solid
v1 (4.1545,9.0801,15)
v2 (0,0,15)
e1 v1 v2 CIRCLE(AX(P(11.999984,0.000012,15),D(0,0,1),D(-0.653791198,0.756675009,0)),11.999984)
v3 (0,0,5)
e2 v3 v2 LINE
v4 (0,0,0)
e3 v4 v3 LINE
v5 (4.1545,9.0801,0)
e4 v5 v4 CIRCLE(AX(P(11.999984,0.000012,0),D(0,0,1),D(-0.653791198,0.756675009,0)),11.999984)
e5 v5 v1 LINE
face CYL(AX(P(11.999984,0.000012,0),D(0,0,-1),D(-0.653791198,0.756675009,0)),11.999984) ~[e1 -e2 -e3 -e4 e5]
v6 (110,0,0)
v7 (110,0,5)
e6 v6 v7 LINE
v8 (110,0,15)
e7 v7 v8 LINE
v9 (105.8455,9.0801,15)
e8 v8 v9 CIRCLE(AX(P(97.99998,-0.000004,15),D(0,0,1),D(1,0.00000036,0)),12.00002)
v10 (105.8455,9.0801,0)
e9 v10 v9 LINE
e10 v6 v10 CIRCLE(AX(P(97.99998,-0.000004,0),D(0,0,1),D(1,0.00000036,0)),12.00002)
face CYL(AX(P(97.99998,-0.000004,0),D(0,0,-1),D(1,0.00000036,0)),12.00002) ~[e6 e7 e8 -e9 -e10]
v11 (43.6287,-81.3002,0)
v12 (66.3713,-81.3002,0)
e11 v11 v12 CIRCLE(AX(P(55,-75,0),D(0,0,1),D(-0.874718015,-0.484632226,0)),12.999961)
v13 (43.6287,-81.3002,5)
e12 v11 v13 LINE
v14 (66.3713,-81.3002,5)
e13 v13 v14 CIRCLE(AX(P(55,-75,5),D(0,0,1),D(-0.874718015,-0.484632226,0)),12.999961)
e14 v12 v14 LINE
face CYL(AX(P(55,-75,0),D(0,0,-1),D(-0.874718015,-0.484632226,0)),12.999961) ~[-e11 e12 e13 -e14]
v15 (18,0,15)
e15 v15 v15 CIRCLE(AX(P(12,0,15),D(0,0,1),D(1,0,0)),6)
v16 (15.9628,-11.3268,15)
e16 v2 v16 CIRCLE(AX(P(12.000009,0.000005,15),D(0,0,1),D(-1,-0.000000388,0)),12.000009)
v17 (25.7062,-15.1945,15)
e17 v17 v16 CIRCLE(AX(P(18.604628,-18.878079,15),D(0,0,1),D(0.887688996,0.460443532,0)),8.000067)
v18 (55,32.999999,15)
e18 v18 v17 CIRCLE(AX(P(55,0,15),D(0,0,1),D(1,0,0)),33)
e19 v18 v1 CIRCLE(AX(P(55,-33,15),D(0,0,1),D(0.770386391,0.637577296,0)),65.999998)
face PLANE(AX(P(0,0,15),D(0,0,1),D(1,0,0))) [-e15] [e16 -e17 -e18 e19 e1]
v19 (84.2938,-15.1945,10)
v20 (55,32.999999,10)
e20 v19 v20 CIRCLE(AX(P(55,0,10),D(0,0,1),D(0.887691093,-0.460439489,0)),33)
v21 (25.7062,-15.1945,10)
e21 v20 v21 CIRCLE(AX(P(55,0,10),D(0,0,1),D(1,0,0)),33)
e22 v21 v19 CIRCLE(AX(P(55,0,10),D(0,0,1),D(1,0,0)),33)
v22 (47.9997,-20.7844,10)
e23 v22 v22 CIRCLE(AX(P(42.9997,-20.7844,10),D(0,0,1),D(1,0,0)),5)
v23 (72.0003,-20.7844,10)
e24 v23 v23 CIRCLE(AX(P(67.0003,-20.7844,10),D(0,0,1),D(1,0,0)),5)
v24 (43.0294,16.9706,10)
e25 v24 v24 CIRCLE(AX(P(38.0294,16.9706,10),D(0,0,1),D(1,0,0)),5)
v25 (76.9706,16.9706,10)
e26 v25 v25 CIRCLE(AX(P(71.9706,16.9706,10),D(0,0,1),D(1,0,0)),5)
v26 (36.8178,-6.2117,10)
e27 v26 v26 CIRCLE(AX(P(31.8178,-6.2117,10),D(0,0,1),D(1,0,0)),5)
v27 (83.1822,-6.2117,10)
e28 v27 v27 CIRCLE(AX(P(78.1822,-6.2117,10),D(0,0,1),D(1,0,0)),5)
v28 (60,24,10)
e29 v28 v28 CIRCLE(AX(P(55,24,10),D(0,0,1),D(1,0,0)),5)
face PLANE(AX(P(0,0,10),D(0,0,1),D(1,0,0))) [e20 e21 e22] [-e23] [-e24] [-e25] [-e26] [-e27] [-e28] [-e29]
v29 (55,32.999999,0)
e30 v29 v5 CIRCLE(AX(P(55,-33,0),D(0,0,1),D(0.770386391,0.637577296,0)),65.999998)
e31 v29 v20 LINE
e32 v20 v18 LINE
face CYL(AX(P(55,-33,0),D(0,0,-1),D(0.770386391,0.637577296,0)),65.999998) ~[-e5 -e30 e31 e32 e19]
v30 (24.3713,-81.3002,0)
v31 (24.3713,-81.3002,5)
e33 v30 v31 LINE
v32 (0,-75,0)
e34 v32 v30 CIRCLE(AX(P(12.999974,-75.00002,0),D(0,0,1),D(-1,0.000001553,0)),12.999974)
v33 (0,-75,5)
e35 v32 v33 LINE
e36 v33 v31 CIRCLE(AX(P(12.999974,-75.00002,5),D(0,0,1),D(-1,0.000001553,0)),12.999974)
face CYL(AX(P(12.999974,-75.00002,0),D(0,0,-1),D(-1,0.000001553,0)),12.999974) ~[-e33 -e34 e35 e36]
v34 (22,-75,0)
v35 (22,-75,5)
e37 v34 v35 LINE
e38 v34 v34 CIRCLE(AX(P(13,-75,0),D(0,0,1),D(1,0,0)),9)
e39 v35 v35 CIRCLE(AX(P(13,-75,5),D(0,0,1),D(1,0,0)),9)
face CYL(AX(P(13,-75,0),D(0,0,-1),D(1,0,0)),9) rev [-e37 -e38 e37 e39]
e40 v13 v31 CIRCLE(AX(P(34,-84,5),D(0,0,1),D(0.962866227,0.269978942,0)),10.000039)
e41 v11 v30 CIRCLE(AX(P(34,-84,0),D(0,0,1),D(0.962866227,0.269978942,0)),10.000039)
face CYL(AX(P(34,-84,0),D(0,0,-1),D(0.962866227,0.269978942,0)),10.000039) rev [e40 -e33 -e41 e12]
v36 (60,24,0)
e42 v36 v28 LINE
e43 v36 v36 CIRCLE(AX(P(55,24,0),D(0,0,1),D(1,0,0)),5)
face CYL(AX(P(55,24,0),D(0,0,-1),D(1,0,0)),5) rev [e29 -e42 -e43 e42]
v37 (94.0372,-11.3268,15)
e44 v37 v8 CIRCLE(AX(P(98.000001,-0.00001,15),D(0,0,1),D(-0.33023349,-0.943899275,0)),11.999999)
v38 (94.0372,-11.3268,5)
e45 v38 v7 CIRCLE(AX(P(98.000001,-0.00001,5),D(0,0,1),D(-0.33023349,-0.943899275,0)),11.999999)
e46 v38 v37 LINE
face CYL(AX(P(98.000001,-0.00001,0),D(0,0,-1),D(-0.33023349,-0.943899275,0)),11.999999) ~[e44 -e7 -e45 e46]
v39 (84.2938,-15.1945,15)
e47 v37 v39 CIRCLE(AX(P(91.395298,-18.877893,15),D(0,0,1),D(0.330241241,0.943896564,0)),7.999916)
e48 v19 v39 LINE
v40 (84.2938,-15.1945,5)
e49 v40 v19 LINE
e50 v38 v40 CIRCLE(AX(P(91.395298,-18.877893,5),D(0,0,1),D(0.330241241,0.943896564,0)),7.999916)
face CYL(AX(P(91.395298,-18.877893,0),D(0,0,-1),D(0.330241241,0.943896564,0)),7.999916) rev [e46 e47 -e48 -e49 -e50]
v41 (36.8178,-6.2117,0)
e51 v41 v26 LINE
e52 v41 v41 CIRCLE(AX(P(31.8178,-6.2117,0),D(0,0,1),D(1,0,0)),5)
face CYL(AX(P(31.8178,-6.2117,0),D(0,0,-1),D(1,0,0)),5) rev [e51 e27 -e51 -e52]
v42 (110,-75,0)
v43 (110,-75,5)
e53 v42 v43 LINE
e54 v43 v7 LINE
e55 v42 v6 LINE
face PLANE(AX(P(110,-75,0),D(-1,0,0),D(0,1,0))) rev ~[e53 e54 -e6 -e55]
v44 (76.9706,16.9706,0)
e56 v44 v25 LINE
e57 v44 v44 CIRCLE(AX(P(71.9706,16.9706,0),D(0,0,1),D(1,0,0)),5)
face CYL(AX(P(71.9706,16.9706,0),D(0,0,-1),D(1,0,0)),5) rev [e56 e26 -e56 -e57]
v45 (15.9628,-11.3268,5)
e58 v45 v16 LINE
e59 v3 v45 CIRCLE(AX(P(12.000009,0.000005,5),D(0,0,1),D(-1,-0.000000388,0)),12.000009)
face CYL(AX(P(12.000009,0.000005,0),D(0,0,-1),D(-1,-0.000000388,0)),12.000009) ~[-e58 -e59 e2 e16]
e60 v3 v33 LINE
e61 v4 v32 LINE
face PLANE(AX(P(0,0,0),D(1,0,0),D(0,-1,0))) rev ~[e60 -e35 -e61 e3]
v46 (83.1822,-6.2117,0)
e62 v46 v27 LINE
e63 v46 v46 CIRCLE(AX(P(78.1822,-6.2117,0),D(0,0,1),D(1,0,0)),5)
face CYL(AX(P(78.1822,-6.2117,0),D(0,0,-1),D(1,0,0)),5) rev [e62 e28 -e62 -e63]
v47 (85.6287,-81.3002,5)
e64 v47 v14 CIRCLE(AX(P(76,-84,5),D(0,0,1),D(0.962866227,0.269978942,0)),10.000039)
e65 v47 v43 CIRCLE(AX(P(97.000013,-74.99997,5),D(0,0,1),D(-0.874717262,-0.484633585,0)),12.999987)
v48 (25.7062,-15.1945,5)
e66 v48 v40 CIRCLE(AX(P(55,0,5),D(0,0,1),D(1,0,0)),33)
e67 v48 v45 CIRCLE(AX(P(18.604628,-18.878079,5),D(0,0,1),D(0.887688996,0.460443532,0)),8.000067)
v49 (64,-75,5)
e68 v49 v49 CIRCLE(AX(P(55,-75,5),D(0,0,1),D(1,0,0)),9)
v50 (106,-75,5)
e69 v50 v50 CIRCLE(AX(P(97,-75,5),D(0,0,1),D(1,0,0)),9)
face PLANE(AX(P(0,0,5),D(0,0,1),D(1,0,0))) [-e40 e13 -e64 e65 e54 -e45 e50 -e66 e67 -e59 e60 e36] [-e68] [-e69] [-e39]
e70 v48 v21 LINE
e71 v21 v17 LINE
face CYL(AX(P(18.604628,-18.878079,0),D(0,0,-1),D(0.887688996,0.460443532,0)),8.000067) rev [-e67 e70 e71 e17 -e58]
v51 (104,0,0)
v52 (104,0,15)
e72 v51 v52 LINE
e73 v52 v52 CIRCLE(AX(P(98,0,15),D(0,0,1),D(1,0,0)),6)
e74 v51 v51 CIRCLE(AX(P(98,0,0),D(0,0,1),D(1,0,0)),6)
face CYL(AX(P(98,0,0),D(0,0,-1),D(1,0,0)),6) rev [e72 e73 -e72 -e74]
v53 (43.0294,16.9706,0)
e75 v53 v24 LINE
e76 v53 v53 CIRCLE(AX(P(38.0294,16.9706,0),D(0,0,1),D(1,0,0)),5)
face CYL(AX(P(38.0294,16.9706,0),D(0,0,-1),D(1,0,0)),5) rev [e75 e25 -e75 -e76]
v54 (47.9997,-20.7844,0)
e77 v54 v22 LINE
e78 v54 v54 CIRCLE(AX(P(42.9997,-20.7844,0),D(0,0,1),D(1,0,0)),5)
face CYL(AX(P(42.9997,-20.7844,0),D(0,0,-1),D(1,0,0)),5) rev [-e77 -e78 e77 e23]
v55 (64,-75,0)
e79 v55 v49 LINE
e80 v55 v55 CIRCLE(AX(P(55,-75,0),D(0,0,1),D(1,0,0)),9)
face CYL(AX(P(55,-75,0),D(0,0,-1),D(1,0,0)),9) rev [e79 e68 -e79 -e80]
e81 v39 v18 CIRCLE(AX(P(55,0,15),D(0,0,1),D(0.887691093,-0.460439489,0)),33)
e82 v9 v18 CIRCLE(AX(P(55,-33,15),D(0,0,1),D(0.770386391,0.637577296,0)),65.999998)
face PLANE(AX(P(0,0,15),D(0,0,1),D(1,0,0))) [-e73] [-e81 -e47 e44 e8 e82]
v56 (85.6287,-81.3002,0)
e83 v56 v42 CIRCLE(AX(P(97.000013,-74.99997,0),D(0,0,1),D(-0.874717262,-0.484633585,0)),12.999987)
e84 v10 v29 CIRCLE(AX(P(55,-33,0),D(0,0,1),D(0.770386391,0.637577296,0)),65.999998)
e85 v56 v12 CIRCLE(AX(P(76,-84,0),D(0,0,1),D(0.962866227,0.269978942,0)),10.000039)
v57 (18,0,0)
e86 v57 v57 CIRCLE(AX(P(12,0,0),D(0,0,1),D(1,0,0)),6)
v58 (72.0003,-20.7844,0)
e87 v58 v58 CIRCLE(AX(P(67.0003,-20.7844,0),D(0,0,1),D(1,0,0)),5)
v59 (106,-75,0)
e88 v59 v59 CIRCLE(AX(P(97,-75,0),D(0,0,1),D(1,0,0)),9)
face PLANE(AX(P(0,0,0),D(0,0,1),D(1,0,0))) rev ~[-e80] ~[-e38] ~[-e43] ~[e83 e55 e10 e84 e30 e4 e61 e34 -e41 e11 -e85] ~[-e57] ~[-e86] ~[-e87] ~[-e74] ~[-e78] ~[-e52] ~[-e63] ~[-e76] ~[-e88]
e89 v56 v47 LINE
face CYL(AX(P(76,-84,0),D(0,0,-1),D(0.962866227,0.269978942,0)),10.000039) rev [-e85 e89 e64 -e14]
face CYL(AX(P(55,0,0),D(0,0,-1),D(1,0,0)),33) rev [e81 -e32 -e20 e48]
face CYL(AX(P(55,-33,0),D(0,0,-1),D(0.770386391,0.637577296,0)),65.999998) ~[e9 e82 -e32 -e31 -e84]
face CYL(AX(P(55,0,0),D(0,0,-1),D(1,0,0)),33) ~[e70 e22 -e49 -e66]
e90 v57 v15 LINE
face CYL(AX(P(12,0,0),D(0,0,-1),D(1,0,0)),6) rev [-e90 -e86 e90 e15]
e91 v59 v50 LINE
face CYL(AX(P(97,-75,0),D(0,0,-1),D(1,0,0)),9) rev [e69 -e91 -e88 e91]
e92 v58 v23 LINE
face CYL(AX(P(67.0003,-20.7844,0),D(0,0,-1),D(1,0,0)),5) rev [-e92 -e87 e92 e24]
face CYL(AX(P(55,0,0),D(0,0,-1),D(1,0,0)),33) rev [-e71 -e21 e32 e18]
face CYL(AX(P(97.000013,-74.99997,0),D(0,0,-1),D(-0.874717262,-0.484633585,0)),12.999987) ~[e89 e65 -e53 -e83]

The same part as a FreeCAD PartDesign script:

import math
import FreeCAD as App
import Part
import Sketcher
from FreeCAD import Vector
Q = App.Units.Quantity

doc = App.newDocument("Part")
params = doc.addObject("Spreadsheet::Sheet", "Params")
for row, (alias, value) in enumerate([
    ("sketch1_diameter", "66 mm"),
    ("sketch1_diameter2", "10 mm"),
    ("pad1_length", "10 mm"),
    ("sketch2_diameter", "12 mm"),
    ("sketch2_radius", "8 mm"),
    ("sketch2_radius2", "33 mm"),
    ("sketch2_radius3", "66 mm"),
    ("sketch2_radius4", "12 mm"),
    ("pad2_length", "15 mm"),
    ("sketch3_diameter", "18 mm"),
    ("sketch3_radius", "33 mm"),
    ("sketch3_radius2", "8 mm"),
    ("sketch3_radius3", "12 mm"),
    ("sketch3_radius4", "13 mm"),
    ("pad3_length", "5 mm"),
], start=1):
    params.set(f"A{row}", alias)
    params.set(f"B{row}", "=" + value)
    params.setAlias(f"B{row}", alias)

body = doc.addObject("PartDesign::Body", "Body")

# Sketch on XY plane
sketch1 = body.newObject("Sketcher::SketchObject", "Sketch")
sketch1.AttachmentSupport = (doc.getObject("XY_Plane"), [""])
sketch1.MapMode = "FlatFace"
sketch1.addGeometry([
    Part.Circle(Vector(55, 0, 0), Vector(0, 0, 1), 33),  # 0
    Part.Circle(Vector(43, -21, 0), Vector(0, 0, 1), 5),  # 1
    Part.Circle(Vector(32, -6, 0), Vector(0, 0, 1), 5),  # 2
    Part.Circle(Vector(38, 17, 0), Vector(0, 0, 1), 5),  # 3
    Part.Circle(Vector(67, -21, 0), Vector(0, 0, 1), 5),  # 4
    Part.Circle(Vector(78, -6, 0), Vector(0, 0, 1), 5),  # 5
    Part.Circle(Vector(72, 17, 0), Vector(0, 0, 1), 5),  # 6
    Part.Circle(Vector(55, 24, 0), Vector(0, 0, 1), 5),  # 7
], False)
sketch1.addConstraint([
    Sketcher.Constraint("Equal", 1, 2),
    Sketcher.Constraint("Equal", 2, 3),
    Sketcher.Constraint("Equal", 3, 4),
    Sketcher.Constraint("Equal", 4, 5),
    Sketcher.Constraint("Equal", 5, 6),
    Sketcher.Constraint("Equal", 6, 7),
    Sketcher.Constraint("PointOnObject", 0, 3, -1),
    Sketcher.Constraint("Horizontal", 1, 3, 4, 3),
    Sketcher.Constraint("Horizontal", 2, 3, 5, 3),
    Sketcher.Constraint("Horizontal", 3, 3, 6, 3),
    Sketcher.Constraint("Vertical", 0, 3, 7, 3),
    Sketcher.Constraint("Diameter", 0, Q("66 mm")),
    Sketcher.Constraint("Diameter", 1, Q("10 mm")),
    Sketcher.Constraint("DistanceX", -1, 1, 0, 3, Q("55 mm")),
    Sketcher.Constraint("DistanceY", -1, 1, 7, 3, Q("24 mm")),
    Sketcher.Constraint("DistanceX", 1, 3, 0, 3, Q("12.0003 mm")),
    Sketcher.Constraint("DistanceX", 0, 3, 4, 3, Q("12.0003 mm")),
    Sketcher.Constraint("DistanceX", 2, 3, 1, 3, Q("11.182 mm")),
    Sketcher.Constraint("DistanceY", 1, 3, 3, 3, Q("37.755 mm")),
    Sketcher.Constraint("DistanceX", 3, 3, 4, 3, Q("28.971 mm")),
    Sketcher.Constraint("DistanceX", 4, 3, 5, 3, Q("11.182 mm")),
    Sketcher.Constraint("DistanceY", 1, 3, -1, 1, Q("20.7844 mm")),
    Sketcher.Constraint("DistanceY", 2, 3, -1, 1, Q("6.2117 mm")),
    Sketcher.Constraint("DistanceX", -1, 1, 6, 3, Q("71.9706 mm")),
])
sketch1.setExpression("Constraints[11]", "Params.sketch1_diameter")
sketch1.setExpression("Constraints[12]", "Params.sketch1_diameter2")
pad1 = body.newObject("PartDesign::Pad", "Pad")
pad1.Profile = sketch1
pad1.setExpression("Length", "Params.pad1_length")

# Sketch on XY plane
sketch2 = body.newObject("Sketcher::SketchObject", "Sketch001")
sketch2.AttachmentSupport = (doc.getObject("XY_Plane"), [""])
sketch2.MapMode = "FlatFace"
sketch2.addGeometry([
    Part.ArcOfCircle(Part.Circle(Vector(19, -19, 0), Vector(0, 0, 1), 8), math.radians(27), math.radians(109)),  # 0
    Part.ArcOfCircle(Part.Circle(Vector(55, 0, 0), Vector(0, 0, 1), 33), math.radians(90), math.radians(207)),  # 1
    Part.ArcOfCircle(Part.Circle(Vector(55, -33, 0), Vector(0, 0, 1), 66), math.radians(90), math.radians(140)),  # 2
    Part.ArcOfCircle(Part.Circle(Vector(12, 0, 0), Vector(0, 0, 1), 12), math.radians(131), math.radians(180)),  # 3
    Part.ArcOfCircle(Part.Circle(Vector(12, 0, 0), Vector(0, 0, 1), 12), math.radians(180), math.radians(289)),  # 4
    Part.Circle(Vector(12, 0, 0), Vector(0, 0, 1), 6),  # 5
    Part.ArcOfCircle(Part.Circle(Vector(55, 0, 0), Vector(0, 0, 1), 33), math.radians(-27), math.radians(90)),  # 6
    Part.ArcOfCircle(Part.Circle(Vector(91, -19, 0), Vector(0, 0, 1), 8), math.radians(71), math.radians(153)),  # 7
    Part.ArcOfCircle(Part.Circle(Vector(98, 0, 0), Vector(0, 0, 1), 12), math.radians(-109), math.radians(0)),  # 8
    Part.ArcOfCircle(Part.Circle(Vector(98, 0, 0), Vector(0, 0, 1), 12), math.radians(0), math.radians(49)),  # 9
    Part.ArcOfCircle(Part.Circle(Vector(55, -33, 0), Vector(0, 0, 1), 66), math.radians(40), math.radians(90)),  # 10
    Part.Circle(Vector(98, 0, 0), Vector(0, 0, 1), 6),  # 11
], False)
sketch2.addConstraint([
    Sketcher.Constraint("Tangent", 0, 1, 1, 2),
    Sketcher.Constraint("Tangent", 1, 1, 2, 1),
    Sketcher.Constraint("Coincident", 2, 2, 3, 1),
    Sketcher.Constraint("Tangent", 3, 2, 4, 1),
    Sketcher.Constraint("Tangent", 4, 2, 0, 2),
    Sketcher.Constraint("Tangent", 6, 1, 7, 2),
    Sketcher.Constraint("Tangent", 7, 1, 8, 1),
    Sketcher.Constraint("Tangent", 8, 2, 9, 1),
    Sketcher.Constraint("Coincident", 9, 2, 10, 1),
    Sketcher.Constraint("Tangent", 10, 2, 6, 2),
    Sketcher.Constraint("Coincident", 3, 2, -1, 1),
    Sketcher.Constraint("Coincident", 5, 3, 3, 3),
    Sketcher.Constraint("Coincident", 6, 3, 1, 3),
    Sketcher.Constraint("Coincident", 10, 3, 2, 3),
    Sketcher.Constraint("Coincident", 11, 3, 8, 3),
    Sketcher.Constraint("Equal", 3, 4),
    Sketcher.Constraint("Equal", 1, 6),
    Sketcher.Constraint("Equal", 0, 7),
    Sketcher.Constraint("Equal", 4, 8),
    Sketcher.Constraint("Equal", 8, 9),
    Sketcher.Constraint("Equal", 5, 11),
    Sketcher.Constraint("PointOnObject", 1, 3, -1),
    Sketcher.Constraint("PointOnObject", 3, 3, -1),
    Sketcher.Constraint("PointOnObject", 8, 3, -1),
    Sketcher.Constraint("PointOnObject", 8, 2, -1),
    Sketcher.Constraint("Horizontal", 0, 3, 7, 3),
    Sketcher.Constraint("Horizontal", 2, 2, 9, 2),
    Sketcher.Constraint("Diameter", 5, Q("12 mm")),
    Sketcher.Constraint("Radius", 0, Q("8 mm")),
    Sketcher.Constraint("Radius", 1, Q("33 mm")),
    Sketcher.Constraint("Radius", 2, Q("66 mm")),
    Sketcher.Constraint("Radius", 3, Q("12 mm")),
    Sketcher.Constraint("DistanceX", -1, 1, 1, 3, Q("55 mm")),
])
sketch2.setExpression("Constraints[27]", "Params.sketch2_diameter")
sketch2.setExpression("Constraints[28]", "Params.sketch2_radius")
sketch2.setExpression("Constraints[29]", "Params.sketch2_radius2")
sketch2.setExpression("Constraints[30]", "Params.sketch2_radius3")
sketch2.setExpression("Constraints[31]", "Params.sketch2_radius4")
pad2 = body.newObject("PartDesign::Pad", "Pad001")
pad2.Profile = sketch2
pad2.setExpression("Length", "Params.pad2_length")

# Sketch on XY plane
sketch3 = body.newObject("Sketcher::SketchObject", "Sketch002")
sketch3.AttachmentSupport = (doc.getObject("XY_Plane"), [""])
sketch3.MapMode = "FlatFace"
sketch3.addGeometry([
    Part.ArcOfCircle(Part.Circle(Vector(55, 0, 0), Vector(0, 0, 1), 33), math.radians(-153), math.radians(-27)),  # 0
    Part.ArcOfCircle(Part.Circle(Vector(19, -19, 0), Vector(0, 0, 1), 8), math.radians(27), math.radians(109)),  # 1
    Part.ArcOfCircle(Part.Circle(Vector(12, 0, 0), Vector(0, 0, 1), 12), math.radians(180), math.radians(289)),  # 2
    Part.LineSegment(Vector(0, 0, 0), Vector(0, -75, 0)),  # 3
    Part.ArcOfCircle(Part.Circle(Vector(13, -75, 0), Vector(0, 0, 1), 13), math.radians(180), math.radians(331)),  # 4
    Part.ArcOfCircle(Part.Circle(Vector(34, -84, 0), Vector(0, 0, 1), 10), math.radians(16), math.radians(164)),  # 5
    Part.ArcOfCircle(Part.Circle(Vector(55, -75, 0), Vector(0, 0, 1), 13), math.radians(-151), math.radians(-29)),  # 6
    Part.ArcOfCircle(Part.Circle(Vector(76, -84, 0), Vector(0, 0, 1), 10), math.radians(16), math.radians(164)),  # 7
    Part.ArcOfCircle(Part.Circle(Vector(97, -75, 0), Vector(0, 0, 1), 13), math.radians(-151), math.radians(0)),  # 8
    Part.LineSegment(Vector(110, -75, 0), Vector(110, 0, 0)),  # 9
    Part.ArcOfCircle(Part.Circle(Vector(98, 0, 0), Vector(0, 0, 1), 12), math.radians(-109), math.radians(0)),  # 10
    Part.ArcOfCircle(Part.Circle(Vector(91, -19, 0), Vector(0, 0, 1), 8), math.radians(71), math.radians(153)),  # 11
    Part.Circle(Vector(13, -75, 0), Vector(0, 0, 1), 9),  # 12
    Part.Circle(Vector(55, -75, 0), Vector(0, 0, 1), 9),  # 13
    Part.Circle(Vector(97, -75, 0), Vector(0, 0, 1), 9),  # 14
], False)
sketch3.addConstraint([
    Sketcher.Constraint("Tangent", 0, 1, 1, 1),
    Sketcher.Constraint("Tangent", 1, 2, 2, 2),
    Sketcher.Constraint("Tangent", 2, 1, 3, 1),
    Sketcher.Constraint("Tangent", 3, 2, 4, 1),
    Sketcher.Constraint("Coincident", 4, 2, 5, 2),
    Sketcher.Constraint("Coincident", 5, 1, 6, 1),
    Sketcher.Constraint("Coincident", 6, 2, 7, 2),
    Sketcher.Constraint("Coincident", 7, 1, 8, 1),
    Sketcher.Constraint("Tangent", 8, 2, 9, 1),
    Sketcher.Constraint("Tangent", 9, 2, 10, 2),
    Sketcher.Constraint("Tangent", 10, 1, 11, 1),
    Sketcher.Constraint("Tangent", 11, 2, 0, 2),
    Sketcher.Constraint("Vertical", 3),
    Sketcher.Constraint("Vertical", 9),
    Sketcher.Constraint("Coincident", 2, 1, -1, 1),
    Sketcher.Constraint("Coincident", 12, 3, 4, 3),
    Sketcher.Constraint("Coincident", 13, 3, 6, 3),
    Sketcher.Constraint("Coincident", 14, 3, 8, 3),
    Sketcher.Constraint("Equal", 4, 6),
    Sketcher.Constraint("Equal", 5, 7),
    Sketcher.Constraint("Equal", 6, 8),
    Sketcher.Constraint("Equal", 2, 10),
    Sketcher.Constraint("Equal", 1, 11),
    Sketcher.Constraint("Equal", 12, 13),
    Sketcher.Constraint("Equal", 13, 14),
    Sketcher.Constraint("PointOnObject", 0, 3, -1),
    Sketcher.Constraint("PointOnObject", 10, 3, -1),
    Sketcher.Constraint("Horizontal", 4, 3, 6, 3),
    Sketcher.Constraint("Horizontal", 5, 3, 7, 3),
    Sketcher.Constraint("Horizontal", 6, 3, 8, 3),
    Sketcher.Constraint("Horizontal", 1, 3, 11, 3),
    Sketcher.Constraint("Horizontal", 4, 2, 5, 1),
    Sketcher.Constraint("Horizontal", 5, 1, 6, 2),
    Sketcher.Constraint("Horizontal", 6, 2, 7, 1),
    Sketcher.Constraint("Diameter", 12, Q("18 mm")),
    Sketcher.Constraint("Radius", 0, Q("33 mm")),
    Sketcher.Constraint("Radius", 1, Q("8 mm")),
    Sketcher.Constraint("Radius", 2, Q("12 mm")),
    Sketcher.Constraint("Radius", 4, Q("13 mm")),
    Sketcher.Constraint("Radius", 5, Q("10 mm")),
    Sketcher.Constraint("DistanceY", 3, 2, 3, 1, Q("75 mm")),
    Sketcher.Constraint("DistanceX", -1, 1, 0, 3, Q("55 mm")),
    Sketcher.Constraint("DistanceY", 5, 3, 4, 3, Q("9 mm")),
])
sketch3.setExpression("Constraints[34]", "Params.sketch3_diameter")
sketch3.setExpression("Constraints[35]", "Params.sketch3_radius")
sketch3.setExpression("Constraints[36]", "Params.sketch3_radius2")
sketch3.setExpression("Constraints[37]", "Params.sketch3_radius3")
sketch3.setExpression("Constraints[38]", "Params.sketch3_radius4")
pad3 = body.newObject("PartDesign::Pad", "Pad002")
pad3.Profile = sketch3
pad3.setExpression("Length", "Params.pad3_length")

doc.recompute()
